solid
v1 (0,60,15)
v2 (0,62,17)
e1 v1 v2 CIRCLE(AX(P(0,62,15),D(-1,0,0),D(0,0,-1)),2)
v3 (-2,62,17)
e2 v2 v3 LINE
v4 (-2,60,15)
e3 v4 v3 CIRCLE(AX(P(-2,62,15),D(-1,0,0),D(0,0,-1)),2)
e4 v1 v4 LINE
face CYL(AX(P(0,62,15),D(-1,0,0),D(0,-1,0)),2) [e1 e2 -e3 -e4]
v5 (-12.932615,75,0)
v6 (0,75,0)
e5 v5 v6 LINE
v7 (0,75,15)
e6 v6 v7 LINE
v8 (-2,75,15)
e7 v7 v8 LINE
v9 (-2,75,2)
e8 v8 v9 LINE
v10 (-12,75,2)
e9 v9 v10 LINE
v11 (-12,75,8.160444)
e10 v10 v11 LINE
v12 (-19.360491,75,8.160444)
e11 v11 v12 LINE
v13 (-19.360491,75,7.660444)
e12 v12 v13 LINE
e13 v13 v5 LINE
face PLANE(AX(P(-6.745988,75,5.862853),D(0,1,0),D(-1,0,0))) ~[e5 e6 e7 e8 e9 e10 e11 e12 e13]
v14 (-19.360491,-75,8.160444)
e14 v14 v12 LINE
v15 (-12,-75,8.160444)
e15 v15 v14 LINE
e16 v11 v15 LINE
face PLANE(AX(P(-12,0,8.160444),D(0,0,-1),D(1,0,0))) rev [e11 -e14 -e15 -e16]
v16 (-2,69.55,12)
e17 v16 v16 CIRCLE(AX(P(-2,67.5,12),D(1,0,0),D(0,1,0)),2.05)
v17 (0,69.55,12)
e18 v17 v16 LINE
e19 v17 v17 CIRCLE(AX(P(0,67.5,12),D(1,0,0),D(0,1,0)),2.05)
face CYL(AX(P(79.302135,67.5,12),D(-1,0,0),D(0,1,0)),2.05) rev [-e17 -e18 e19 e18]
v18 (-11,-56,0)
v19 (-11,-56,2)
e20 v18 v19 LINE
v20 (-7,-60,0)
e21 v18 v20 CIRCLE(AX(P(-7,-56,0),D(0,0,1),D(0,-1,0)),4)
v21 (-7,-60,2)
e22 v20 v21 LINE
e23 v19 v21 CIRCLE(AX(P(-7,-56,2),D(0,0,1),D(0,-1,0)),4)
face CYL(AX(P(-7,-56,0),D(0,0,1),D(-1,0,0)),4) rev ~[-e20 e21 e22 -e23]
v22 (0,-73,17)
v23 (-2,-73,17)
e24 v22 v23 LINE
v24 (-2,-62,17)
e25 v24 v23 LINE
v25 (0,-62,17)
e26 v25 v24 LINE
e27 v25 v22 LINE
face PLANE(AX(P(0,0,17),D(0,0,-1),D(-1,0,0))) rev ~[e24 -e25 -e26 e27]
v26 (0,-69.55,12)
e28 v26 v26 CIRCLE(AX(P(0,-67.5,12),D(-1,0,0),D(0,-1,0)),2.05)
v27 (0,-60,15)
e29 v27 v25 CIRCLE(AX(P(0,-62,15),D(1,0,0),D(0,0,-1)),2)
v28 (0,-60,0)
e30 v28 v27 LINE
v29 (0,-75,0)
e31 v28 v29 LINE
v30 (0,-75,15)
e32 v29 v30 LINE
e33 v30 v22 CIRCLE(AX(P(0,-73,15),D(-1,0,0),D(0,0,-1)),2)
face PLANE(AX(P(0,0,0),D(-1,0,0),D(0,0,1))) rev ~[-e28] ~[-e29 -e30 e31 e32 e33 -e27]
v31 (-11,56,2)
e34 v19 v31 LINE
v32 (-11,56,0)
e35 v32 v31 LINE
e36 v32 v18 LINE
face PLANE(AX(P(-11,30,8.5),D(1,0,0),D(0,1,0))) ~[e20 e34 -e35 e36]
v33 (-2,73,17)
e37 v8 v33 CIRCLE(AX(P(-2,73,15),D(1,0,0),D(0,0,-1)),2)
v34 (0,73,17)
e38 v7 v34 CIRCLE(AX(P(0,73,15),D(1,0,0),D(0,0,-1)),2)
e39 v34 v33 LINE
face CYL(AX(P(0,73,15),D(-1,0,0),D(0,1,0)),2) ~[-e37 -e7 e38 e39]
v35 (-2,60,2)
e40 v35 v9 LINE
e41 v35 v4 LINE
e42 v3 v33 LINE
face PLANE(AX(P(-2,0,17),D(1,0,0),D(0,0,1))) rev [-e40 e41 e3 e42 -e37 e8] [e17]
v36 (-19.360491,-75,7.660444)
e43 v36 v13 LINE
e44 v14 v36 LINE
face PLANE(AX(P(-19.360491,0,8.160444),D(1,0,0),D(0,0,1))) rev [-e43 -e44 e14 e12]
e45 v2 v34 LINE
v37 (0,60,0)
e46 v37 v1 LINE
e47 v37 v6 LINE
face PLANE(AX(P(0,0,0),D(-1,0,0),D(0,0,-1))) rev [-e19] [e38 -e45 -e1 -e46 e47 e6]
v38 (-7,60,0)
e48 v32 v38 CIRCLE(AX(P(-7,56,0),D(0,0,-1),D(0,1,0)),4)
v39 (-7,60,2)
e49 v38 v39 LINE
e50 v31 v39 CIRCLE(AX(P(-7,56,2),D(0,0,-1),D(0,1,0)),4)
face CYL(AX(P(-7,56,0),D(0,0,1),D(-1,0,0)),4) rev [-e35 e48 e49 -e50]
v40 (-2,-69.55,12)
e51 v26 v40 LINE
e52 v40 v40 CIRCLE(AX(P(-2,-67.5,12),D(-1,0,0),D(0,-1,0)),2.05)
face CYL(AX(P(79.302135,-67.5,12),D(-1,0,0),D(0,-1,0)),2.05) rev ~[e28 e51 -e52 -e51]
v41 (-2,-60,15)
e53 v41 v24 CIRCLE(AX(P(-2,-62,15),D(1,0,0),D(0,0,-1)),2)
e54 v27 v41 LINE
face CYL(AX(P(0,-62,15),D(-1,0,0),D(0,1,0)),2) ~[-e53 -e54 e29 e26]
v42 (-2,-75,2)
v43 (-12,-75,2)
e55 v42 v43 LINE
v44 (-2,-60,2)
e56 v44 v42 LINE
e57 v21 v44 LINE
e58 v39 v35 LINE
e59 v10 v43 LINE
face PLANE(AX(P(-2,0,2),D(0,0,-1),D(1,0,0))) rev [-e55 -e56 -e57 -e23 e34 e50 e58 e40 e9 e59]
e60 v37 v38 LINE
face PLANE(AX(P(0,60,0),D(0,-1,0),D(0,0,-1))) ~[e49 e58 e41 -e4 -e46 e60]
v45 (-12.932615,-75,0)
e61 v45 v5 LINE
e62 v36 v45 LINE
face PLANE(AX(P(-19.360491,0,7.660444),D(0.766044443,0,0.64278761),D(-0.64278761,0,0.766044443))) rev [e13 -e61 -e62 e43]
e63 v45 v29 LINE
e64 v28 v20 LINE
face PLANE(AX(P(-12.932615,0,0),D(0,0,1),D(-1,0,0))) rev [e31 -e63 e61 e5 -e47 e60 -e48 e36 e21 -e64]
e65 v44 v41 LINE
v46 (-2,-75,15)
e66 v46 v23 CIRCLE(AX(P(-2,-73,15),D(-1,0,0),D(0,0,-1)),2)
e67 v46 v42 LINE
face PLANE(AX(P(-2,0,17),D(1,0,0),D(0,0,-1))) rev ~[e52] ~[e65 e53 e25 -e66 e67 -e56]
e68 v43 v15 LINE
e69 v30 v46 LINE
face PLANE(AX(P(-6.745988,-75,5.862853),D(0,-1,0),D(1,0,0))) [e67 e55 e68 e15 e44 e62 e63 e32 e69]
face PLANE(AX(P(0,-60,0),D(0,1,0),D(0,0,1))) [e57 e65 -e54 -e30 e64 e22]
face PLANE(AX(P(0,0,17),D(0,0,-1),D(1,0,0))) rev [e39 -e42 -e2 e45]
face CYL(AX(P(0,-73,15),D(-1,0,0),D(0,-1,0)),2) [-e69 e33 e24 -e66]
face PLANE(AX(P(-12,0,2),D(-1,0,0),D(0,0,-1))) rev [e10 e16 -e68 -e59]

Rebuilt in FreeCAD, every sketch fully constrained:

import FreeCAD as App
import Part
import Sketcher
Q = App.Units.Quantity


def edges_at(feature, points):
    """Names of the edges that pass closest to the given points."""
    edges = feature.Shape.Edges
    near = lambda p: min(range(len(edges)), key=lambda i: edges[i].distToShape(Part.Vertex(*p))[0])
    return sorted({f"Edge{near(p) + 1}" for p in points})


def add_polygon(sketch, points):
    """Adds a closed chain of lines whose ends are joined by coincident constraints."""
    first, n = sketch.GeometryCount, len(points)
    for a, b in zip(points, points[1:] + points[:1]):
        sketch.addGeometry(Part.LineSegment(App.Vector(*a, 0), App.Vector(*b, 0)), False)
    for i in range(n):
        sketch.addConstraint(Sketcher.Constraint("Coincident", first + i, 2, first + (i + 1) % n, 1))

doc = App.newDocument("Part")
body = doc.addObject("PartDesign::Body", "Body")

sketch1 = body.newObject("Sketcher::SketchObject", "Sketch")
sketch1.AttachmentSupport = (doc.getObject("XZ_Plane"), [""])
sketch1.MapMode = "FlatFace"
add_polygon(sketch1, [(-19.4, 7.7), (-12.9, 0), (0, 0), (0, 17), (-2, 17), (-2, 2), (-12, 2), (-12, 8.2), (-19.4, 8.2)])
sketch1.addConstraint(Sketcher.Constraint("Horizontal", 1))
sketch1.addConstraint(Sketcher.Constraint("Vertical", 2))
sketch1.addConstraint(Sketcher.Constraint("Horizontal", 3))
sketch1.addConstraint(Sketcher.Constraint("Vertical", 4))
sketch1.addConstraint(Sketcher.Constraint("Horizontal", 5))
sketch1.addConstraint(Sketcher.Constraint("Vertical", 6))
sketch1.addConstraint(Sketcher.Constraint("Horizontal", 7))
sketch1.addConstraint(Sketcher.Constraint("Vertical", 8))
sketch1.addConstraint(Sketcher.Constraint("Coincident", 1, 2, -1, 1))
sketch1.addConstraint(Sketcher.Constraint("DistanceX", 3, 2, 3, 1, 2.0))
sketch1.addConstraint(Sketcher.Constraint("DistanceX", 5, 2, 5, 1, 10.0))
sketch1.addConstraint(Sketcher.Constraint("DistanceY", 2, 1, 2, 2, 17.0))
sketch1.addConstraint(Sketcher.Constraint("DistanceY", 4, 2, 4, 1, 15.0))
sketch1.addConstraint(Sketcher.Constraint("Angle", 0, Q("-50 deg")))
sketch1.addConstraint(Sketcher.Constraint("Distance", 0, 10.0))
sketch1.addConstraint(Sketcher.Constraint("DistanceY", 8, 2, 8, 1, 0.5))
sketch1.addConstraint(Sketcher.Constraint("DistanceX", 7, 2, 7, 1, 7.360491))
pad1 = body.newObject("PartDesign::Pad", "Pad")
pad1.Profile = sketch1
pad1.Length = 75

sketch2 = body.newObject("Sketcher::SketchObject", "Sketch001")
sketch2.AttachmentSupport = (doc.getObject("YZ_Plane"), [""])
sketch2.MapMode = "FlatFace"
sketch2.addGeometry(Part.Circle(App.Vector(-67.5, 12, 0), App.Vector(0, 0, 1), 2), False)
sketch2.addConstraint(Sketcher.Constraint("Diameter", 0, 4.1))
sketch2.addConstraint(Sketcher.Constraint("DistanceY", -1, 1, 0, 3, 12.0))
sketch2.addConstraint(Sketcher.Constraint("DistanceX", 0, 3, -1, 1, 67.5))
doc.recompute()
hole = body.newObject("PartDesign::Hole", "Hole")
hole.Profile = sketch2
hole.ThreadType = "None"
hole.Diameter = 4.1
hole.DepthType = "ThroughAll"

sketch3 = body.newObject("Sketcher::SketchObject", "Sketch002")
sketch3.AttachmentSupport = (doc.getObject("YZ_Plane"), [""])
sketch3.MapMode = "FlatFace"
add_polygon(sketch3, [(-60, 17), (-60, 0), (0, 0), (0, 17)])
sketch3.addConstraint(Sketcher.Constraint("Vertical", 0))
sketch3.addConstraint(Sketcher.Constraint("Horizontal", 1))
sketch3.addConstraint(Sketcher.Constraint("Vertical", 2))
sketch3.addConstraint(Sketcher.Constraint("Horizontal", 3))
sketch3.addConstraint(Sketcher.Constraint("Coincident", 1, 2, -1, 1))
sketch3.addConstraint(Sketcher.Constraint("DistanceX", 1, 1, 1, 2, 60.0))
sketch3.addConstraint(Sketcher.Constraint("DistanceY", 0, 2, 0, 1, 17.0))
pocket1 = body.newObject("PartDesign::Pocket", "Pocket")
pocket1.Profile = sketch3
pocket1.Length = 11
doc.recompute()

fillet = body.newObject("PartDesign::Fillet", "Fillet")
fillet.Base = (pocket1, edges_at(pocket1, [(-11, -60, 1)]))
fillet.Radius = 4
doc.recompute()

fillet2 = body.newObject("PartDesign::Fillet", "Fillet001")
fillet2.Base = (fillet, edges_at(fillet, [(-1, -60, 17), (-1, -75, 17)]))
fillet2.Radius = 2
body2 = doc.addObject("PartDesign::Body", "Body001")
doc.recompute()

body2.BaseFeature = body
doc.recompute()

mirroring = doc.addObject("Part::Mirroring", "Mirroring")
mirroring.Source = body
mirroring.Base = App.Vector(-14.445972, 0, 4.919546)
mirroring.Normal = App.Vector(0, 1, 0)
body3 = doc.addObject("PartDesign::Body", "Body002")
body3.BaseFeature = mirroring
boolean = body2.newObject("PartDesign::Boolean", "Boolean")
boolean.Type = "Fuse"
boolean.addObjects([body3])
doc.recompute()
mirroring.Visibility = False

doc.recompute()
